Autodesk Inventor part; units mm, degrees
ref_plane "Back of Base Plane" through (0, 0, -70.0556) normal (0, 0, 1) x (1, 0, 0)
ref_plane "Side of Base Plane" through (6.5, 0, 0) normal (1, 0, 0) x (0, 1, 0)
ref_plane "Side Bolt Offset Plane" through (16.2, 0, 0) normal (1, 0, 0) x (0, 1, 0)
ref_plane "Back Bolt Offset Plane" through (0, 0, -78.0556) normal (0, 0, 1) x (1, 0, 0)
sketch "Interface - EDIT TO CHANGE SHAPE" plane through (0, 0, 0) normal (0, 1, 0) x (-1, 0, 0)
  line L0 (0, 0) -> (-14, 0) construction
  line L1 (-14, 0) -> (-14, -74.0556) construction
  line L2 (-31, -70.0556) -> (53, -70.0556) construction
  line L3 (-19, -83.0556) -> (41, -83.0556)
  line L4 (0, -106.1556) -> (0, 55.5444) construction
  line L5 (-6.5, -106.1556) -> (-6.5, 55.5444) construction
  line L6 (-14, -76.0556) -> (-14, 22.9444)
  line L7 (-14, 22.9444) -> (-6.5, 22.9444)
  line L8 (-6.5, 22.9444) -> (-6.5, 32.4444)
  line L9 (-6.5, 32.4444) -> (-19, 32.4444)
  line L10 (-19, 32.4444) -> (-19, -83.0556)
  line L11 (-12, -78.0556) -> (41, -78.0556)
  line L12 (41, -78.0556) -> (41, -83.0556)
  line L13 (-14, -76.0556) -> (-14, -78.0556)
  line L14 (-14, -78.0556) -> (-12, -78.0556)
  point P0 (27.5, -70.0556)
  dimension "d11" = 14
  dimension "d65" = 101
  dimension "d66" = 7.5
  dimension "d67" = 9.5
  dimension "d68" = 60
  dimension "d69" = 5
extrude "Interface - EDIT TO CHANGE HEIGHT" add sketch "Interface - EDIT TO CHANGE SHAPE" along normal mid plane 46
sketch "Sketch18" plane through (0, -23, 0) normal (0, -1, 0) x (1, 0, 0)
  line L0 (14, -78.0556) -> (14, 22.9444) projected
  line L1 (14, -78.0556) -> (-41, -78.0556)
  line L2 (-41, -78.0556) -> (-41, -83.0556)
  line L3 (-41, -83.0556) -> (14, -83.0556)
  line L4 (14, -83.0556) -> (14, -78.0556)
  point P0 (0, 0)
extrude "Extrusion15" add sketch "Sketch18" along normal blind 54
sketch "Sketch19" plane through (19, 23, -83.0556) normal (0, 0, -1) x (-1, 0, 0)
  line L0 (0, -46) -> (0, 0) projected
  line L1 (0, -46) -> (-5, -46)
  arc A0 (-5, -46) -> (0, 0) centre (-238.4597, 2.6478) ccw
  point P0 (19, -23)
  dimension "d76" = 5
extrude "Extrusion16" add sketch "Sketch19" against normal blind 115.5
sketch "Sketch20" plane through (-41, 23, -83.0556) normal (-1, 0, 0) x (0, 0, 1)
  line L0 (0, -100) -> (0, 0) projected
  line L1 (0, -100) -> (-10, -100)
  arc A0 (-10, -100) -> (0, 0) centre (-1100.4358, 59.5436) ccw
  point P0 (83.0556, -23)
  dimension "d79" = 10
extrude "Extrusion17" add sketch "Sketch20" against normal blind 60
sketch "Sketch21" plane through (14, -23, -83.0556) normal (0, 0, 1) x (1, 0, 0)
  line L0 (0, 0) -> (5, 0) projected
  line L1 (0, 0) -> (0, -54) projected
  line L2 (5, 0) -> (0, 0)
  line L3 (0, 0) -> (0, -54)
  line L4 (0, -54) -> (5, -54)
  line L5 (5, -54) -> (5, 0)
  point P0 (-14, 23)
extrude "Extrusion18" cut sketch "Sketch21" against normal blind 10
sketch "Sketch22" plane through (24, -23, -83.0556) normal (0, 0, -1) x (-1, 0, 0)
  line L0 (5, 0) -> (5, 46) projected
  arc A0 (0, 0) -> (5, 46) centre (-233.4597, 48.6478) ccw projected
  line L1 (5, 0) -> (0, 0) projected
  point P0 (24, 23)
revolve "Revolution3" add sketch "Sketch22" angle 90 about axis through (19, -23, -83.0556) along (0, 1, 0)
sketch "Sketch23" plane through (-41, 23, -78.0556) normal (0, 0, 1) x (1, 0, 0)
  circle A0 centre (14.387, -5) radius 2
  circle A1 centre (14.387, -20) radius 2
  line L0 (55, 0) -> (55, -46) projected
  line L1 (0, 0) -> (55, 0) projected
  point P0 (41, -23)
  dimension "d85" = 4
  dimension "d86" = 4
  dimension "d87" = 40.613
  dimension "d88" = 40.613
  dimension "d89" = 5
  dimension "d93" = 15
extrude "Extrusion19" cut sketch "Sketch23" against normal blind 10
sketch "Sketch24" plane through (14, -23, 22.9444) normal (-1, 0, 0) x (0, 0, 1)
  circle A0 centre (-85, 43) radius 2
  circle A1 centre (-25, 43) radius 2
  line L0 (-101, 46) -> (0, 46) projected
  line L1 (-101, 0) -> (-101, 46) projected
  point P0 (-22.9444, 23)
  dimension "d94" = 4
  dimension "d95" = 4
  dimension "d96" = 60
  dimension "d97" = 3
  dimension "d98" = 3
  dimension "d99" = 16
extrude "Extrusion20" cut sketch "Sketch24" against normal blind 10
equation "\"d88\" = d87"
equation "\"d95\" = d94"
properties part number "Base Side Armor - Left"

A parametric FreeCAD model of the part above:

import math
import FreeCAD as App
import Part
import Sketcher
Q = App.Units.Quantity


def add_polygon(sketch, points):
    """Adds a closed chain of lines whose ends are joined by coincident constraints."""
    first, n = sketch.GeometryCount, len(points)
    for a, b in zip(points, points[1:] + points[:1]):
        sketch.addGeometry(Part.LineSegment(App.Vector(*a, 0), App.Vector(*b, 0)), False)
    for i in range(n):
        sketch.addConstraint(Sketcher.Constraint("Coincident", first + i, 2, first + (i + 1) % n, 1))

doc = App.newDocument("Part")
body = doc.addObject("PartDesign::Body", "Body")

sketch1 = body.newObject("Sketcher::SketchObject", "Sketch")
sketch1.AttachmentSupport = (doc.getObject("XZ_Plane"), [""])
sketch1.MapMode = "FlatFace"
add_polygon(sketch1, [(19, 32), (19, -83), (-41, -83), (-41, -78), (14, -78), (14, 23), (6, 23), (6, 32)])
sketch1.addConstraint([
    Sketcher.Constraint("Vertical", 0),
    Sketcher.Constraint("Horizontal", 1),
    Sketcher.Constraint("Vertical", 2),
    Sketcher.Constraint("Horizontal", 3),
    Sketcher.Constraint("Vertical", 4),
    Sketcher.Constraint("Horizontal", 5),
    Sketcher.Constraint("Vertical", 6),
    Sketcher.Constraint("Horizontal", 7),
    Sketcher.Constraint("DistanceX", 1, 2, 1, 1, Q("60 mm")),
    Sketcher.Constraint("DistanceY", 2, 1, 2, 2, Q("5 mm")),
    Sketcher.Constraint("DistanceY", 4, 1, 4, 2, Q("101 mm")),
    Sketcher.Constraint("DistanceX", 5, 2, 5, 1, Q("7.5 mm")),
    Sketcher.Constraint("DistanceY", 6, 1, 6, 2, Q("9.5 mm")),
    Sketcher.Constraint("DistanceX", -1, 1, 3, 2, Q("14 mm")),
    Sketcher.Constraint("DistanceX", 3, 2, 0, 2, Q("5 mm")),
    Sketcher.Constraint("DistanceY", 0, 2, -1, 1, Q("83.0556 mm")),
])
pad1 = body.newObject("PartDesign::Pad", "Pad")
pad1.Profile = sketch1
pad1.Length = 46
pad1.Midplane = True

sketch2 = body.newObject("Sketcher::SketchObject", "Sketch001")
sketch2.AttachmentSupport = (doc.getObject("XZ_Plane"), [""])
sketch2.MapMode = "FlatFace"
sketch2.AttachmentOffset = App.Placement(App.Vector(0, 0, 23), App.Rotation())
add_polygon(sketch2, [(14, -83), (14, -78), (-41, -78), (-41, -83)])
sketch2.addConstraint([
    Sketcher.Constraint("Vertical", 0),
    Sketcher.Constraint("Horizontal", 1),
    Sketcher.Constraint("Vertical", 2),
    Sketcher.Constraint("Horizontal", 3),
    Sketcher.Constraint("DistanceX", 1, 2, 1, 1, Q("55 mm")),
    Sketcher.Constraint("DistanceY", 0, 1, 0, 2, Q("5 mm")),
    Sketcher.Constraint("DistanceX", -1, 1, 0, 2, Q("14 mm")),
    Sketcher.Constraint("DistanceY", 0, 2, -1, 1, Q("78.0556 mm")),
])
pad2 = body.newObject("PartDesign::Pad", "Pad001")
pad2.Profile = sketch2
pad2.Length = 54

sketch3 = body.newObject("Sketcher::SketchObject", "Sketch002")
sketch3.AttachmentSupport = (doc.getObject("XY_Plane"), [""])
sketch3.MapMode = "FlatFace"
sketch3.AttachmentOffset = App.Placement(App.Vector(0, 0, -83.0556), App.Rotation())
sketch3.addGeometry([
    Part.LineSegment(App.Vector(24, -23, 0), App.Vector(19, -23, 0)),
    Part.LineSegment(App.Vector(19, -23, 0), App.Vector(19, 23, 0)),
    Part.ArcOfCircle(Part.Circle(App.Vector(257, 26, 0), App.Vector(0, 0, 1), 238), math.radians(-179.36), math.radians(-168.23)),
], False)
sketch3.addConstraint([
    Sketcher.Constraint("Coincident", 0, 2, 1, 1),
    Sketcher.Constraint("Coincident", 1, 2, 2, 1),
    Sketcher.Constraint("Coincident", 2, 2, 0, 1),
    Sketcher.Constraint("Horizontal", 0),
    Sketcher.Constraint("Vertical", 1),
    Sketcher.Constraint("DistanceX", 0, 2, 0, 1, Q("5 mm")),
    Sketcher.Constraint("DistanceY", 1, 1, 1, 2, Q("46 mm")),
    Sketcher.Constraint("DistanceX", -1, 1, 0, 2, Q("19 mm")),
    Sketcher.Constraint("DistanceY", 0, 2, -1, 1, Q("23 mm")),
    Sketcher.Constraint("Radius", 2, Q("238.4744 mm")),
])
pad3 = body.newObject("PartDesign::Pad", "Pad002")
pad3.Profile = sketch3
pad3.Length = 115.5

sketch4 = body.newObject("Sketcher::SketchObject", "Sketch003")
sketch4.AttachmentSupport = (doc.getObject("YZ_Plane"), [""])
sketch4.MapMode = "FlatFace"
sketch4.AttachmentOffset = App.Placement(App.Vector(0, 0, -41), App.Rotation())
sketch4.addGeometry([
    Part.LineSegment(App.Vector(-77, -93, 0), App.Vector(-77, -83, 0)),
    Part.LineSegment(App.Vector(-77, -83, 0), App.Vector(23, -83, 0)),
    Part.ArcOfCircle(Part.Circle(App.Vector(83, -1183, 0), App.Vector(0, 0, 1), 1102), math.radians(93.1), math.radians(98.32)),
], False)
sketch4.addConstraint([
    Sketcher.Constraint("Coincident", 0, 2, 1, 1),
    Sketcher.Constraint("Coincident", 1, 2, 2, 1),
    Sketcher.Constraint("Coincident", 2, 2, 0, 1),
    Sketcher.Constraint("Vertical", 0),
    Sketcher.Constraint("Horizontal", 1),
    Sketcher.Constraint("DistanceY", 0, 1, 0, 2, Q("10 mm")),
    Sketcher.Constraint("DistanceX", 1, 1, 1, 2, Q("100 mm")),
    Sketcher.Constraint("DistanceX", 0, 2, -1, 1, Q("77 mm")),
    Sketcher.Constraint("Radius", 2, Q("1102.0455 mm")),
    Sketcher.Constraint("DistanceY", 2, 3, -1, 1, Q("1183.4914 mm")),
])
pad4 = body.newObject("PartDesign::Pad", "Pad003")
pad4.Profile = sketch4
pad4.Length = 60

sketch5 = body.newObject("Sketcher::SketchObject", "Sketch004")
sketch5.AttachmentSupport = (doc.getObject("XY_Plane"), [""])
sketch5.MapMode = "FlatFace"
sketch5.AttachmentOffset = App.Placement(App.Vector(0, 0, -83.0556), App.Rotation())
add_polygon(sketch5, [(19, -23), (14, -23), (14, -77), (19, -77)])
sketch5.addConstraint([
    Sketcher.Constraint("Horizontal", 0),
    Sketcher.Constraint("Vertical", 1),
    Sketcher.Constraint("Horizontal", 2),
    Sketcher.Constraint("Vertical", 3),
    Sketcher.Constraint("DistanceX", 0, 2, 0, 1, Q("5 mm")),
    Sketcher.Constraint("DistanceY", 1, 2, 1, 1, Q("54 mm")),
    Sketcher.Constraint("DistanceX", -1, 1, 0, 2, Q("14 mm")),
    Sketcher.Constraint("DistanceY", 0, 2, -1, 1, Q("23 mm")),
])
pocket1 = body.newObject("PartDesign::Pocket", "Pocket")
pocket1.Profile = sketch5
pocket1.Length = 10

sketch6 = body.newObject("Sketcher::SketchObject", "Sketch005")
sketch6.AttachmentSupport = (doc.getObject("XY_Plane"), [""])
sketch6.MapMode = "FlatFace"
sketch6.AttachmentOffset = App.Placement(App.Vector(0, 0, -83.0556), App.Rotation())
sketch6.addGeometry([
    Part.LineSegment(App.Vector(24, -23, 0), App.Vector(19, -23, 0)),
    Part.LineSegment(App.Vector(19, -23, 0), App.Vector(19, 23, 0)),
    Part.ArcOfCircle(Part.Circle(App.Vector(257, 26, 0), App.Vector(0, 0, 1), 238), math.radians(-179.36), math.radians(-168.23)),
], False)
sketch6.addGeometry(Part.LineSegment(App.Vector(19, -23, 0), App.Vector(19, 26, 0)), True)
sketch6.addConstraint([
    Sketcher.Constraint("Coincident", 0, 2, 1, 1),
    Sketcher.Constraint("Coincident", 1, 2, 2, 1),
    Sketcher.Constraint("Coincident", 2, 2, 0, 1),
    Sketcher.Constraint("Horizontal", 0),
    Sketcher.Constraint("Vertical", 1),
    Sketcher.Constraint("Vertical", 3),
    Sketcher.Constraint("Coincident", 3, 1, 0, 2),
    Sketcher.Constraint("Horizontal", 2, 3, 3, 2),
    Sketcher.Constraint("DistanceX", 0, 2, 0, 1, Q("5 mm")),
    Sketcher.Constraint("DistanceY", 1, 1, 1, 2, Q("46 mm")),
    Sketcher.Constraint("DistanceX", -1, 1, 0, 2, Q("19 mm")),
    Sketcher.Constraint("DistanceY", 0, 2, -1, 1, Q("23 mm")),
    Sketcher.Constraint("Radius", 2, Q("238.4744 mm")),
])
revolution = body.newObject("PartDesign::Revolution", "Revolution")
revolution.Profile = sketch6
revolution.ReferenceAxis = (sketch6, ["Axis0"])
revolution.Angle = 90

sketch7 = body.newObject("Sketcher::SketchObject", "Sketch006")
sketch7.AttachmentSupport = (doc.getObject("XY_Plane"), [""])
sketch7.MapMode = "FlatFace"
sketch7.AttachmentOffset = App.Placement(App.Vector(0, 0, -78.0556), App.Rotation())
sketch7.addGeometry([
    Part.Circle(App.Vector(-26.6, 18, 0), App.Vector(0, 0, 1), 2),
    Part.Circle(App.Vector(-26.6, 3, 0), App.Vector(0, 0, 1), 2),
], False)
sketch7.addConstraint([
    Sketcher.Constraint("Equal", 0, 1),
    Sketcher.Constraint("Vertical", 0, 3, 1, 3),
    Sketcher.Constraint("Diameter", 0, Q("4 mm")),
    Sketcher.Constraint("DistanceY", 1, 3, 0, 3, Q("15 mm")),
    Sketcher.Constraint("DistanceY", -1, 1, 0, 3, Q("18 mm")),
    Sketcher.Constraint("DistanceX", 0, 3, -1, 1, Q("26.613 mm")),
])
pocket2 = body.newObject("PartDesign::Pocket", "Pocket001")
pocket2.Profile = sketch7
pocket2.Length = 10

sketch8 = body.newObject("Sketcher::SketchObject", "Sketch007")
sketch8.AttachmentSupport = (doc.getObject("YZ_Plane"), [""])
sketch8.MapMode = "FlatFace"
sketch8.AttachmentOffset = App.Placement(App.Vector(0, 0, 14), App.Rotation())
sketch8.addGeometry([
    Part.Circle(App.Vector(20, -62.1, 0), App.Vector(0, 0, 1), 2),
    Part.Circle(App.Vector(20, -2.1, 0), App.Vector(0, 0, 1), 2),
], False)
sketch8.addConstraint([
    Sketcher.Constraint("Equal", 0, 1),
    Sketcher.Constraint("Vertical", 0, 3, 1, 3),
    Sketcher.Constraint("Diameter", 0, Q("4 mm")),
    Sketcher.Constraint("DistanceY", 0, 3, 1, 3, Q("60 mm")),
    Sketcher.Constraint("DistanceX", -1, 1, 0, 3, Q("20 mm")),
    Sketcher.Constraint("DistanceY", 0, 3, -1, 1, Q("62.0556 mm")),
])
pocket3 = body.newObject("PartDesign::Pocket", "Pocket002")
pocket3.Profile = sketch8
pocket3.Length = 10
pocket3.Reversed = True

doc.recompute()
